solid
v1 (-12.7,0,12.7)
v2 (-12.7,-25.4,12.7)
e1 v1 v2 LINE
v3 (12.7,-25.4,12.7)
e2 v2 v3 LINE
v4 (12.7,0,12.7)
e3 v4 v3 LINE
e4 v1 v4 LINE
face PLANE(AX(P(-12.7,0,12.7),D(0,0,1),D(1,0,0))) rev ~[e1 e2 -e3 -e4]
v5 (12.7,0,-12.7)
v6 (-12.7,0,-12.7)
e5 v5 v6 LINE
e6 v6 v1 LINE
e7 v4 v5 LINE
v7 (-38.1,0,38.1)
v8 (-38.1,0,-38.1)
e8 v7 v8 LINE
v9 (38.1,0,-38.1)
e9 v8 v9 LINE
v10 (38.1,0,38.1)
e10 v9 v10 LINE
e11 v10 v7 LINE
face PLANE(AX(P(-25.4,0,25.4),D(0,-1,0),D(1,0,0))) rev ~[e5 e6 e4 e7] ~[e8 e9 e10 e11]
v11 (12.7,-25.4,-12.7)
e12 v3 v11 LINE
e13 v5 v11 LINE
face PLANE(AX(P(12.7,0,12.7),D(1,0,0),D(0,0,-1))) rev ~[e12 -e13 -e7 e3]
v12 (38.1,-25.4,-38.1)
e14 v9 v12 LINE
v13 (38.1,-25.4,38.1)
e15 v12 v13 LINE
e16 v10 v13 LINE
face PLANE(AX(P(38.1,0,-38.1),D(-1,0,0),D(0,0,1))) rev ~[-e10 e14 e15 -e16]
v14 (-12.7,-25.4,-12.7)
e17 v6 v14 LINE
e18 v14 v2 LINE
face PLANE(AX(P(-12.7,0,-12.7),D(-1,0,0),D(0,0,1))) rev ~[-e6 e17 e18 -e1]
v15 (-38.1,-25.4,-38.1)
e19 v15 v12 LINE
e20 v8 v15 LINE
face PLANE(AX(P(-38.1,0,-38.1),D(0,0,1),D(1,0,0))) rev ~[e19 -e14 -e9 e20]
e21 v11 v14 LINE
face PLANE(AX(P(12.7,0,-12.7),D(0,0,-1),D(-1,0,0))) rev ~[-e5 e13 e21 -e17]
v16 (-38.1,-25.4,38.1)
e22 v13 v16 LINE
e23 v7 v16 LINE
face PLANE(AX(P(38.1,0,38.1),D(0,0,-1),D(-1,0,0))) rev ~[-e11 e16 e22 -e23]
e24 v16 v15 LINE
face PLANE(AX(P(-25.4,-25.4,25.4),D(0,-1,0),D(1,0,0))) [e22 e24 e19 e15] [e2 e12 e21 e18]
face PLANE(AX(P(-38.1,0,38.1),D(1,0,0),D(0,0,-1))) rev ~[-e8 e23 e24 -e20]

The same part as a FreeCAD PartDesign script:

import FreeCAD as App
import Part
import Sketcher
from FreeCAD import Vector
Q = App.Units.Quantity

doc = App.newDocument("Part")
body = doc.addObject("PartDesign::Body", "Body")

sketch1 = body.newObject("Sketcher::SketchObject", "Sketch")
sketch1.AttachmentSupport = (doc.getObject("XZ_Plane"), [""])
sketch1.MapMode = "FlatFace"
sketch1.addGeometry([
    Part.LineSegment(Vector(-38.1, 38.1, 0), Vector(-38.1, -38.1, 0)),
    Part.LineSegment(Vector(-38.1, -38.1, 0), Vector(38.1, -38.1, 0)),
    Part.LineSegment(Vector(38.1, -38.1, 0), Vector(38.1, 38.1, 0)),
    Part.LineSegment(Vector(38.1, 38.1, 0), Vector(-38.1, 38.1, 0)),
    Part.LineSegment(Vector(-12.7, 12.7, 0), Vector(12.7, 12.7, 0)),
    Part.LineSegment(Vector(12.7, 12.7, 0), Vector(12.7, -12.7, 0)),
    Part.LineSegment(Vector(12.7, -12.7, 0), Vector(-12.7, -12.7, 0)),
    Part.LineSegment(Vector(-12.7, -12.7, 0), Vector(-12.7, 12.7, 0)),
], False)
sketch1.addConstraint([
    Sketcher.Constraint("Coincident", 0, 2, 1, 1),
    Sketcher.Constraint("Coincident", 1, 2, 2, 1),
    Sketcher.Constraint("Coincident", 2, 2, 3, 1),
    Sketcher.Constraint("Coincident", 3, 2, 0, 1),
    Sketcher.Constraint("Coincident", 4, 2, 5, 1),
    Sketcher.Constraint("Coincident", 5, 2, 6, 1),
    Sketcher.Constraint("Coincident", 6, 2, 7, 1),
    Sketcher.Constraint("Coincident", 7, 2, 4, 1),
    Sketcher.Constraint("Vertical", 0),
    Sketcher.Constraint("Horizontal", 1),
    Sketcher.Constraint("Vertical", 2),
    Sketcher.Constraint("Horizontal", 3),
    Sketcher.Constraint("Horizontal", 4),
    Sketcher.Constraint("Vertical", 5),
    Sketcher.Constraint("Horizontal", 6),
    Sketcher.Constraint("Vertical", 7),
    Sketcher.Constraint("Symmetric", 0, 2, 2, 2, -1, 1),
    Sketcher.Constraint("Symmetric", 4, 2, 6, 2, -1, 1),
    Sketcher.Constraint("Equal", 3, 0),
    Sketcher.Constraint("Equal", 6, 5),
    Sketcher.Constraint("DistanceX", 1, 1, 1, 2, Q("3 in")),
    Sketcher.Constraint("DistanceX", 4, 1, 4, 2, Q("1 in")),
])
pad1 = body.newObject("PartDesign::Pad", "Pad")
pad1.Profile = sketch1
pad1.Length = Q("1 in")

doc.recompute()
